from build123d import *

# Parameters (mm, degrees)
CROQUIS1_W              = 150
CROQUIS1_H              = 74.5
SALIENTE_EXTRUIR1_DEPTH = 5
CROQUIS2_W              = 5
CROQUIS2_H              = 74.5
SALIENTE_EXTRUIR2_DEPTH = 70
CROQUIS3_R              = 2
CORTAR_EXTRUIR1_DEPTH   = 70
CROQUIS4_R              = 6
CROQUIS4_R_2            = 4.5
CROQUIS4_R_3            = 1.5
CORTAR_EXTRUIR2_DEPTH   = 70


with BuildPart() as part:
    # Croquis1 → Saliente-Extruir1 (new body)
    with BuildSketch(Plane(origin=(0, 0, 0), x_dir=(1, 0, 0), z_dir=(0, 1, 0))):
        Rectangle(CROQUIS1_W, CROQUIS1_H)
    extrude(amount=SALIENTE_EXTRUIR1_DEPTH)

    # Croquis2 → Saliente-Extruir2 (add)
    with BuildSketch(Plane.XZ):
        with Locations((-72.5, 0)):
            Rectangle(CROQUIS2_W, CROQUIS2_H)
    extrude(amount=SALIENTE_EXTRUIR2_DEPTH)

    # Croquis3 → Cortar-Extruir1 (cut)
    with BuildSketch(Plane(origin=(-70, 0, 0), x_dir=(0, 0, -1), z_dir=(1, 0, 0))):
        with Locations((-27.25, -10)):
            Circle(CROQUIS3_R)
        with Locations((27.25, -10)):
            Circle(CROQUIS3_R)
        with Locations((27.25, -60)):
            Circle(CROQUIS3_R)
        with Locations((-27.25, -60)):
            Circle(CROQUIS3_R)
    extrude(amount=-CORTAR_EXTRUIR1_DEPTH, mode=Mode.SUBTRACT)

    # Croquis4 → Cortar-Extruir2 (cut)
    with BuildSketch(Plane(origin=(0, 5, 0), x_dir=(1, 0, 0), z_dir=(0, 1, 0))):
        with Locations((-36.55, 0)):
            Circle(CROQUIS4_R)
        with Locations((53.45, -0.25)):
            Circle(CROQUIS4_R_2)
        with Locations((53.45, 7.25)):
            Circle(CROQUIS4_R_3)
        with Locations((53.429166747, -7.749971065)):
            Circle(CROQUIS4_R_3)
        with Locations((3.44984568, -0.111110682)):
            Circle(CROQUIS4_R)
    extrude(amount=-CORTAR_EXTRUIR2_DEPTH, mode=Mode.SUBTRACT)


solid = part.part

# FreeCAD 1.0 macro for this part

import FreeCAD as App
import Part
import Sketcher
from FreeCAD import Vector
Q = App.Units.Quantity


def add_polygon(sketch, points):
    """Adds a closed chain of lines whose ends are joined by coincident constraints."""
    first, n = sketch.GeometryCount, len(points)
    for a, b in zip(points, points[1:] + points[:1]):
        sketch.addGeometry(Part.LineSegment(App.Vector(*a, 0), App.Vector(*b, 0)), False)
    for i in range(n):
        sketch.addConstraint(Sketcher.Constraint("Coincident", first + i, 2, first + (i + 1) % n, 1))

doc = App.newDocument("Part")
params = doc.addObject("Spreadsheet::Sheet", "Params")
for row, (alias, value) in enumerate([
    ("sketch1_width", "150 mm"),
    ("sketch1_height", "74.5 mm"),
    ("pad1_length", "5 mm"),
    ("sketch2_width", "5 mm"),
    ("sketch2_height", "74.5 mm"),
    ("pad2_length", "70 mm"),
    ("sketch3_diameter", "4 mm"),
    ("pocket1_length", "70 mm"),
    ("sketch4_diameter", "12 mm"),
    ("sketch4_diameter2", "9 mm"),
    ("sketch4_diameter3", "3 mm"),
    ("pocket2_length", "70 mm"),
], start=1):
    params.set(f"A{row}", alias)
    params.set(f"B{row}", "=" + value)
    params.setAlias(f"B{row}", alias)

body = doc.addObject("PartDesign::Body", "Body")

sketch1 = body.newObject("Sketcher::SketchObject", "Sketch")
sketch1.AttachmentSupport = (doc.getObject("XZ_Plane"), [""])
sketch1.MapMode = "FlatFace"
add_polygon(sketch1, [(-75, -37), (-75, 37), (75, 37), (75, -37)])
sketch1.addConstraint([
    Sketcher.Constraint("Vertical", 0),
    Sketcher.Constraint("Horizontal", 1),
    Sketcher.Constraint("Vertical", 2),
    Sketcher.Constraint("Horizontal", 3),
    Sketcher.Constraint("Symmetric", 0, 2, 2, 2, -1, 1),
    Sketcher.Constraint("DistanceX", 1, 1, 1, 2, Q("150 mm")),
    Sketcher.Constraint("DistanceY", 0, 1, 0, 2, Q("74.5 mm")),
])
sketch1.setExpression("Constraints[9]", "Params.sketch1_width")
sketch1.setExpression("Constraints[10]", "Params.sketch1_height")
pad1 = body.newObject("PartDesign::Pad", "Pad")
pad1.Profile = sketch1
pad1.setExpression("Length", "Params.pad1_length")
pad1.Reversed = True

sketch2 = body.newObject("Sketcher::SketchObject", "Sketch001")
sketch2.AttachmentSupport = (doc.getObject("XZ_Plane"), [""])
sketch2.MapMode = "FlatFace"
add_polygon(sketch2, [(-75, 37), (-75, -37), (-70, -37), (-70, 37)])
sketch2.addConstraint([
    Sketcher.Constraint("Vertical", 0),
    Sketcher.Constraint("Horizontal", 1),
    Sketcher.Constraint("Vertical", 2),
    Sketcher.Constraint("Horizontal", 3),
    Sketcher.Constraint("DistanceX", 1, 1, 1, 2, Q("5 mm")),
    Sketcher.Constraint("DistanceY", 0, 2, 0, 1, Q("74.5 mm")),
    Sketcher.Constraint("DistanceX", 0, 2, -1, 1, Q("75 mm")),
    Sketcher.Constraint("DistanceY", 0, 2, -1, 1, Q("37.25 mm")),
])
sketch2.setExpression("Constraints[8]", "Params.sketch2_width")
sketch2.setExpression("Constraints[9]", "Params.sketch2_height")
pad2 = body.newObject("PartDesign::Pad", "Pad001")
pad2.Profile = sketch2
pad2.setExpression("Length", "Params.pad2_length")

sketch3 = body.newObject("Sketcher::SketchObject", "Sketch002")
sketch3.AttachmentSupport = (doc.getObject("YZ_Plane"), [""])
sketch3.MapMode = "FlatFace"
sketch3.AttachmentOffset = App.Placement(Vector(0, 0, -70), App.Rotation())
sketch3.addGeometry([
    Part.Circle(Vector(-10, 27.2, 0), Vector(0, 0, 1), 2),
    Part.Circle(Vector(-10, -27.2, 0), Vector(0, 0, 1), 2),
    Part.Circle(Vector(-60, -27.2, 0), Vector(0, 0, 1), 2),
    Part.Circle(Vector(-60, 27.2, 0), Vector(0, 0, 1), 2),
], False)
sketch3.addConstraint([
    Sketcher.Constraint("Equal", 0, 1),
    Sketcher.Constraint("Equal", 1, 2),
    Sketcher.Constraint("Equal", 2, 3),
    Sketcher.Constraint("Symmetric", 0, 3, 1, 3, -1),
    Sketcher.Constraint("Symmetric", 2, 3, 3, 3, -1),
    Sketcher.Constraint("Horizontal", 1, 3, 2, 3),
    Sketcher.Constraint("Diameter", 0, Q("4 mm")),
    Sketcher.Constraint("DistanceX", 0, 3, -1, 1, Q("10 mm")),
    Sketcher.Constraint("DistanceX", 2, 3, -1, 1, Q("60 mm")),
    Sketcher.Constraint("DistanceY", 1, 3, 0, 3, Q("54.5 mm")),
])
sketch3.setExpression("Constraints[6]", "Params.sketch3_diameter")
pocket1 = body.newObject("PartDesign::Pocket", "Pocket")
pocket1.Profile = sketch3
pocket1.setExpression("Length", "Params.pocket1_length")

sketch4 = body.newObject("Sketcher::SketchObject", "Sketch003")
sketch4.AttachmentSupport = (doc.getObject("XZ_Plane"), [""])
sketch4.MapMode = "FlatFace"
sketch4.AttachmentOffset = App.Placement(Vector(0, 0, -5), App.Rotation())
sketch4.addGeometry([
    Part.Circle(Vector(-36.5, 0, 0), Vector(0, 0, 1), 6),
    Part.Circle(Vector(53.5, 0.2, 0), Vector(0, 0, 1), 4.5),
    Part.Circle(Vector(53.5, -7.2, 0), Vector(0, 0, 1), 1.5),
    Part.Circle(Vector(53.4, 7.7, 0), Vector(0, 0, 1), 1.5),
    Part.Circle(Vector(3.4, 0.1, 0), Vector(0, 0, 1), 6),
], False)
sketch4.addConstraint([
    Sketcher.Constraint("Equal", 2, 3),
    Sketcher.Constraint("Equal", 0, 4),
    Sketcher.Constraint("PointOnObject", 0, 3, -1),
    Sketcher.Constraint("Vertical", 1, 3, 2, 3),
    Sketcher.Constraint("Diameter", 0, Q("12 mm")),
    Sketcher.Constraint("Diameter", 1, Q("9 mm")),
    Sketcher.Constraint("Diameter", 2, Q("3 mm")),
    Sketcher.Constraint("DistanceX", 0, 3, 1, 3, Q("90 mm")),
    Sketcher.Constraint("DistanceY", 2, 3, 1, 3, Q("7.5 mm")),
    Sketcher.Constraint("DistanceX", 0, 3, -1, 1, Q("36.55 mm")),
    Sketcher.Constraint("DistanceY", -1, 1, 1, 3, Q("0.25 mm")),
    Sketcher.Constraint("DistanceY", -1, 1, 3, 3, Q("7.749971 mm")),
    Sketcher.Constraint("DistanceY", -1, 1, 4, 3, Q("0.111111 mm")),
    Sketcher.Constraint("DistanceX", 4, 3, 3, 3, Q("49.979321 mm")),
    Sketcher.Constraint("DistanceX", -1, 1, 3, 3, Q("53.429167 mm")),
])
sketch4.setExpression("Constraints[4]", "Params.sketch4_diameter")
sketch4.setExpression("Constraints[5]", "Params.sketch4_diameter2")
sketch4.setExpression("Constraints[6]", "Params.sketch4_diameter3")
pocket2 = body.newObject("PartDesign::Pocket", "Pocket001")
pocket2.Profile = sketch4
pocket2.setExpression("Length", "Params.pocket2_length")
pocket2.Reversed = True

doc.recompute()
